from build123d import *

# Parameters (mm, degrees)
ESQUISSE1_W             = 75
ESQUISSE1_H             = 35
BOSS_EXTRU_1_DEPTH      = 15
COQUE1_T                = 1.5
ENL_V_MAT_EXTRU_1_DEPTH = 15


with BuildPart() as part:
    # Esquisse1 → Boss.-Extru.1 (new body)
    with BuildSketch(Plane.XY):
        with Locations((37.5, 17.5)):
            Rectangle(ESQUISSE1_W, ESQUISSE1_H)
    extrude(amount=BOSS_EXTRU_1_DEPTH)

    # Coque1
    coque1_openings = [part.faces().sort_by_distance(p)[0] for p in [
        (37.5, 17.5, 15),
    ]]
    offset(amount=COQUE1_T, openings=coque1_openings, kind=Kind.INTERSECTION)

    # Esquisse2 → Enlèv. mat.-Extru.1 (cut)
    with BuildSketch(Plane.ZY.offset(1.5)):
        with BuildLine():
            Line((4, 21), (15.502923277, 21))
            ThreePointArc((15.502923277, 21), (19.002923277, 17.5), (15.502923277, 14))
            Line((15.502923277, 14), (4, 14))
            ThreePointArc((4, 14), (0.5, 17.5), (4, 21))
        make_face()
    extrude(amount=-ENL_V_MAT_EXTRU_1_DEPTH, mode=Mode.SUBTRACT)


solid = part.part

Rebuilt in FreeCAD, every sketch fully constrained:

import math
import FreeCAD as App
import Part
import Sketcher

V = App.Vector
Q = App.Units.Quantity


def faces_at(feature, points):
    """Names of the faces that lie closest to the given points."""
    faces = feature.Shape.Faces
    near = lambda p: min(range(len(faces)), key=lambda i: faces[i].distToShape(Part.Vertex(*p))[0])
    return sorted({f"Face{near(p) + 1}" for p in points})

doc = App.newDocument("Part")
body = doc.addObject("PartDesign::Body", "Body")

# Sketch on XY plane
sketch1 = body.newObject("Sketcher::SketchObject", "Sketch")
sketch1.AttachmentSupport = (doc.getObject("XY_Plane"), [""])
sketch1.MapMode = "FlatFace"
sketch1.addGeometry([
    Part.LineSegment(V(0, 35, 0), V(0, 0, 0)),
    Part.LineSegment(V(0, 0, 0), V(75, 0, 0)),
    Part.LineSegment(V(75, 0, 0), V(75, 35, 0)),
    Part.LineSegment(V(75, 35, 0), V(0, 35, 0)),
], False)
sketch1.addConstraint([
    Sketcher.Constraint("Coincident", 0, 2, 1, 1),
    Sketcher.Constraint("Coincident", 1, 2, 2, 1),
    Sketcher.Constraint("Coincident", 2, 2, 3, 1),
    Sketcher.Constraint("Coincident", 3, 2, 0, 1),
    Sketcher.Constraint("Vertical", 0),
    Sketcher.Constraint("Horizontal", 1),
    Sketcher.Constraint("Vertical", 2),
    Sketcher.Constraint("Horizontal", 3),
    Sketcher.Constraint("Coincident", 0, 2, -1, 1),
    Sketcher.Constraint("DistanceX", 1, 1, 1, 2, Q("75 mm")),
    Sketcher.Constraint("DistanceY", 0, 2, 0, 1, Q("35 mm")),
])
pad1 = body.newObject("PartDesign::Pad", "Pad")
pad1.Profile = sketch1
pad1.Length = 15
doc.recompute()

thickness = body.newObject("PartDesign::Thickness", "Thickness")
thickness.Base = (pad1, faces_at(pad1, [(37.5, 17.5, 15)]))
thickness.Value = 1.5
thickness.Reversed = False
thickness.Join = "Intersection"

# Sketch on YZ plane
sketch2 = body.newObject("Sketcher::SketchObject", "Sketch001")
sketch2.AttachmentSupport = (doc.getObject("YZ_Plane"), [""])
sketch2.MapMode = "FlatFace"
sketch2.AttachmentOffset = App.Placement(V(0, 0, -1.5), App.Rotation())
sketch2.addGeometry([
    Part.LineSegment(V(21, 15.5, 0), V(21, 4, 0)),
    Part.ArcOfCircle(Part.Circle(V(17.5, 4, 0), V(0, 0, 1), 3.5), math.radians(180), math.radians(360)),
    Part.LineSegment(V(14, 4, 0), V(14, 15.5, 0)),
    Part.ArcOfCircle(Part.Circle(V(17.5, 15.5, 0), V(0, 0, 1), 3.5), math.radians(0), math.radians(180)),
], False)
sketch2.addConstraint([
    Sketcher.Constraint("Tangent", 0, 2, 1, 2),
    Sketcher.Constraint("Tangent", 1, 1, 2, 1),
    Sketcher.Constraint("Tangent", 2, 2, 3, 2),
    Sketcher.Constraint("Tangent", 3, 1, 0, 1),
    Sketcher.Constraint("Vertical", 0),
    Sketcher.Constraint("Vertical", 2),
    Sketcher.Constraint("Radius", 1, Q("3.5 mm")),
    Sketcher.Constraint("DistanceY", -1, 1, 1, 3, Q("4 mm")),
    Sketcher.Constraint("DistanceX", -1, 1, 0, 2, Q("21 mm")),
    Sketcher.Constraint("DistanceY", 0, 2, 0, 1, Q("11.502923 mm")),
])
pocket1 = body.newObject("PartDesign::Pocket", "Pocket")
pocket1.Profile = sketch2
pocket1.Length = 15
pocket1.Reversed = True

doc.recompute()
